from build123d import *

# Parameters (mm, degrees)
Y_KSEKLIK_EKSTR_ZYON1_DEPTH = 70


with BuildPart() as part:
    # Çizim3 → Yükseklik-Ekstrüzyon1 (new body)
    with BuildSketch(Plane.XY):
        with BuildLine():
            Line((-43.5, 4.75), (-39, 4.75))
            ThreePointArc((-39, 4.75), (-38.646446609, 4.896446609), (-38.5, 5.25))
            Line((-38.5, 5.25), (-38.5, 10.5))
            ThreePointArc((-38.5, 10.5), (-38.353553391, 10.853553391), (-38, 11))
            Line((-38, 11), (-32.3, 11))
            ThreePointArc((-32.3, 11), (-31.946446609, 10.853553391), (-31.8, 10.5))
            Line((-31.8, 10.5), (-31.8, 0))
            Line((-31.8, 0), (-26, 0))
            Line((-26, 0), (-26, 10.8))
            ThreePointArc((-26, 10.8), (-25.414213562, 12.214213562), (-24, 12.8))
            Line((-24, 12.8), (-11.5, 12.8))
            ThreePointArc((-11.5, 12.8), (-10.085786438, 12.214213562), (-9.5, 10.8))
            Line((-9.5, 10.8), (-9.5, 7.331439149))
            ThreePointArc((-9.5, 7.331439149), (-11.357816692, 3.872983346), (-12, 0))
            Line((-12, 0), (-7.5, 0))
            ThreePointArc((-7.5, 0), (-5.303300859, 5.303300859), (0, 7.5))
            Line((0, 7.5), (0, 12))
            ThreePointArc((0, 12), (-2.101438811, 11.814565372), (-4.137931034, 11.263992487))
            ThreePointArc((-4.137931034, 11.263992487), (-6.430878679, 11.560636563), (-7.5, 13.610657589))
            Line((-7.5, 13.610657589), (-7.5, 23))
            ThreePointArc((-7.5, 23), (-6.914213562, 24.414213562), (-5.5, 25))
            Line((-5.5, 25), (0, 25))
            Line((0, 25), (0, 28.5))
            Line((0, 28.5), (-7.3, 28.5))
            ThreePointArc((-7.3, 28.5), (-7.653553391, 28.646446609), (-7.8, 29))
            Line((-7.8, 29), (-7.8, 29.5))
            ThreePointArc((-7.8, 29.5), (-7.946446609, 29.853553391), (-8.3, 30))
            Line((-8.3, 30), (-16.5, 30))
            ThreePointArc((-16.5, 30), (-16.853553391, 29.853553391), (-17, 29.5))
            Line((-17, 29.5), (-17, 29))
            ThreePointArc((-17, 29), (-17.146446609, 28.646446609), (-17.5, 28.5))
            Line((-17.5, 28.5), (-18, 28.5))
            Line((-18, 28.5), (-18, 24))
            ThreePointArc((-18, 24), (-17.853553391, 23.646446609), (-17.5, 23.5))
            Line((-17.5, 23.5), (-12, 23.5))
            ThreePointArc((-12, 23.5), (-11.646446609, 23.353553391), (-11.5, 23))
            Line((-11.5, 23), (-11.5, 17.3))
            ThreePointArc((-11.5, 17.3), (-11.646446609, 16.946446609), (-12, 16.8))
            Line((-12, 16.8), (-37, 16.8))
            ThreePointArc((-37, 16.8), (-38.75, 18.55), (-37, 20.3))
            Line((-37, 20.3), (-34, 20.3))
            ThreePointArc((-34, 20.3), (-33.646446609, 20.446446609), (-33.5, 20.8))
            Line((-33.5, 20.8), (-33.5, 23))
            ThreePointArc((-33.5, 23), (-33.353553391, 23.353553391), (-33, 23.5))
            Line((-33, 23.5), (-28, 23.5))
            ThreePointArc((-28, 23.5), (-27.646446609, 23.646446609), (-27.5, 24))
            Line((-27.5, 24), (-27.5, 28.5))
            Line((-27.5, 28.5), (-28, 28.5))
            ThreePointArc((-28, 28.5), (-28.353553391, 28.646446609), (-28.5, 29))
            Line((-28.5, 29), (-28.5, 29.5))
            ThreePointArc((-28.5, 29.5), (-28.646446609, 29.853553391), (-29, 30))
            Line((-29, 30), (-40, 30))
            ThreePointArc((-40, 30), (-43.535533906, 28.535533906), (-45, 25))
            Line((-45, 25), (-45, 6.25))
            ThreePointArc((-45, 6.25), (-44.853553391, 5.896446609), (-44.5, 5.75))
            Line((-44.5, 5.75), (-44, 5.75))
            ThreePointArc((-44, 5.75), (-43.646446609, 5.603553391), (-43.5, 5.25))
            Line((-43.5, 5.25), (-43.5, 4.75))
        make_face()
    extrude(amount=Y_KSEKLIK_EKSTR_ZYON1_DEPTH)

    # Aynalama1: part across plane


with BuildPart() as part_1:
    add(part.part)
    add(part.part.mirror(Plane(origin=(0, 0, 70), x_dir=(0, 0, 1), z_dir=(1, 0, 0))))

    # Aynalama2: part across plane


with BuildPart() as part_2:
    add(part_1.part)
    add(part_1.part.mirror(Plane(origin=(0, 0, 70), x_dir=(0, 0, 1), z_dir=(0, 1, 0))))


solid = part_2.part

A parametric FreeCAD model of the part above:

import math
import FreeCAD as App
import Part
import Sketcher

V = App.Vector
Q = App.Units.Quantity

doc = App.newDocument("Part")
body = doc.addObject("PartDesign::Body", "Body")

# Sketch on XY plane
sketch1 = body.newObject("Sketcher::SketchObject", "Sketch")
sketch1.AttachmentSupport = (doc.getObject("XY_Plane"), [""])
sketch1.MapMode = "FlatFace"
sketch1.addGeometry([
    Part.LineSegment(V(-43.5, 4.75, 0), V(-39, 4.75, 0)),  # 0
    Part.ArcOfCircle(Part.Circle(V(-39, 5.25, 0), V(0, 0, 1), 0.5), math.radians(-90), math.radians(0)),  # 1
    Part.LineSegment(V(-38.5, 5.25, 0), V(-38.5, 10.5, 0)),  # 2
    Part.ArcOfCircle(Part.Circle(V(-38, 10.5, 0), V(0, 0, 1), 0.5), math.radians(90), math.radians(180)),  # 3
    Part.LineSegment(V(-38, 11, 0), V(-32.3, 11, 0)),  # 4
    Part.ArcOfCircle(Part.Circle(V(-32.3, 10.5, 0), V(0, 0, 1), 0.5), math.radians(0), math.radians(90)),  # 5
    Part.LineSegment(V(-31.8, 10.5, 0), V(-31.8, 0, 0)),  # 6
    Part.LineSegment(V(-31.8, 0, 0), V(-26, 0, 0)),  # 7
    Part.LineSegment(V(-26, 0, 0), V(-26, 10.8, 0)),  # 8
    Part.ArcOfCircle(Part.Circle(V(-24, 10.8, 0), V(0, 0, 1), 2), math.radians(90), math.radians(180)),  # 9
    Part.LineSegment(V(-24, 12.8, 0), V(-11.5, 12.8, 0)),  # 10
    Part.ArcOfCircle(Part.Circle(V(-11.5, 10.8, 0), V(0, 0, 1), 2), math.radians(0), math.radians(90)),  # 11
    Part.LineSegment(V(-9.5, 10.8, 0), V(-9.5, 7.331439, 0)),  # 12
    Part.ArcOfCircle(Part.Circle(V(0, 0, 0), V(0, 0, 1), 12), math.radians(142.341538), math.radians(180)),  # 13
    Part.LineSegment(V(-12, 0, 0), V(-7.5, 0, 0)),  # 14
    Part.ArcOfCircle(Part.Circle(V(0, 0, 0), V(0, 0, 1), 7.5), math.radians(90), math.radians(180)),  # 15
    Part.LineSegment(V(0, 7.5, 0), V(0, 12, 0)),  # 16
    Part.ArcOfCircle(Part.Circle(V(0, 0, 0), V(0, 0, 1), 12), math.radians(90), math.radians(110.171271)),  # 17
    Part.ArcOfCircle(Part.Circle(V(-5, 13.610658, 0), V(0, 0, 1), 2.5), math.radians(180), math.radians(290.171271)),  # 18
    Part.LineSegment(V(-7.5, 13.610658, 0), V(-7.5, 23, 0)),  # 19
    Part.ArcOfCircle(Part.Circle(V(-5.5, 23, 0), V(0, 0, 1), 2), math.radians(90), math.radians(180)),  # 20
    Part.LineSegment(V(-5.5, 25, 0), V(0, 25, 0)),  # 21
    Part.LineSegment(V(0, 25, 0), V(0, 28.5, 0)),  # 22
    Part.LineSegment(V(0, 28.5, 0), V(-7.3, 28.5, 0)),  # 23
    Part.ArcOfCircle(Part.Circle(V(-7.3, 29, 0), V(0, 0, 1), 0.5), math.radians(180), math.radians(270)),  # 24
    Part.LineSegment(V(-7.8, 29, 0), V(-7.8, 29.5, 0)),  # 25
    Part.ArcOfCircle(Part.Circle(V(-8.3, 29.5, 0), V(0, 0, 1), 0.5), math.radians(0), math.radians(90)),  # 26
    Part.LineSegment(V(-8.3, 30, 0), V(-16.5, 30, 0)),  # 27
    Part.ArcOfCircle(Part.Circle(V(-16.5, 29.5, 0), V(0, 0, 1), 0.5), math.radians(90), math.radians(180)),  # 28
    Part.LineSegment(V(-17, 29.5, 0), V(-17, 29, 0)),  # 29
    Part.ArcOfCircle(Part.Circle(V(-17.5, 29, 0), V(0, 0, 1), 0.5), math.radians(-90), math.radians(0)),  # 30
    Part.LineSegment(V(-17.5, 28.5, 0), V(-18, 28.5, 0)),  # 31
    Part.LineSegment(V(-18, 28.5, 0), V(-18, 24, 0)),  # 32
    Part.ArcOfCircle(Part.Circle(V(-17.5, 24, 0), V(0, 0, 1), 0.5), math.radians(180), math.radians(270)),  # 33
    Part.LineSegment(V(-17.5, 23.5, 0), V(-12, 23.5, 0)),  # 34
    Part.ArcOfCircle(Part.Circle(V(-12, 23, 0), V(0, 0, 1), 0.5), math.radians(0), math.radians(90)),  # 35
    Part.LineSegment(V(-11.5, 23, 0), V(-11.5, 17.3, 0)),  # 36
    Part.ArcOfCircle(Part.Circle(V(-12, 17.3, 0), V(0, 0, 1), 0.5), math.radians(-90), math.radians(0)),  # 37
    Part.LineSegment(V(-12, 16.8, 0), V(-37, 16.8, 0)),  # 38
    Part.ArcOfCircle(Part.Circle(V(-37, 18.55, 0), V(0, 0, 1), 1.75), math.radians(90), math.radians(270)),  # 39
    Part.LineSegment(V(-37, 20.3, 0), V(-34, 20.3, 0)),  # 40
    Part.ArcOfCircle(Part.Circle(V(-34, 20.8, 0), V(0, 0, 1), 0.5), math.radians(-90), math.radians(0)),  # 41
    Part.LineSegment(V(-33.5, 20.8, 0), V(-33.5, 23, 0)),  # 42
    Part.ArcOfCircle(Part.Circle(V(-33, 23, 0), V(0, 0, 1), 0.5), math.radians(90), math.radians(180)),  # 43
    Part.LineSegment(V(-33, 23.5, 0), V(-28, 23.5, 0)),  # 44
    Part.ArcOfCircle(Part.Circle(V(-28, 24, 0), V(0, 0, 1), 0.5), math.radians(-90), math.radians(0)),  # 45
    Part.LineSegment(V(-27.5, 24, 0), V(-27.5, 28.5, 0)),  # 46
    Part.LineSegment(V(-27.5, 28.5, 0), V(-28, 28.5, 0)),  # 47
    Part.ArcOfCircle(Part.Circle(V(-28, 29, 0), V(0, 0, 1), 0.5), math.radians(180), math.radians(270)),  # 48
    Part.LineSegment(V(-28.5, 29, 0), V(-28.5, 29.5, 0)),  # 49
    Part.ArcOfCircle(Part.Circle(V(-29, 29.5, 0), V(0, 0, 1), 0.5), math.radians(0), math.radians(90)),  # 50
    Part.LineSegment(V(-29, 30, 0), V(-40, 30, 0)),  # 51
    Part.ArcOfCircle(Part.Circle(V(-40, 25, 0), V(0, 0, 1), 5), math.radians(90), math.radians(180)),  # 52
    Part.LineSegment(V(-45, 25, 0), V(-45, 6.25, 0)),  # 53
    Part.ArcOfCircle(Part.Circle(V(-44.5, 6.25, 0), V(0, 0, 1), 0.5), math.radians(180), math.radians(270)),  # 54
    Part.LineSegment(V(-44.5, 5.75, 0), V(-44, 5.75, 0)),  # 55
    Part.ArcOfCircle(Part.Circle(V(-44, 5.25, 0), V(0, 0, 1), 0.5), math.radians(0), math.radians(90)),  # 56
    Part.LineSegment(V(-43.5, 5.25, 0), V(-43.5, 4.75, 0)),  # 57
], False)
sketch1.addConstraint([
    Sketcher.Constraint("Tangent", 0, 2, 1, 1),
    Sketcher.Constraint("Tangent", 1, 2, 2, 1),
    Sketcher.Constraint("Tangent", 2, 2, 3, 2),
    Sketcher.Constraint("Tangent", 3, 1, 4, 1),
    Sketcher.Constraint("Tangent", 4, 2, 5, 2),
    Sketcher.Constraint("Tangent", 5, 1, 6, 1),
    Sketcher.Constraint("Coincident", 6, 2, 7, 1),
    Sketcher.Constraint("Coincident", 7, 2, 8, 1),
    Sketcher.Constraint("Tangent", 8, 2, 9, 2),
    Sketcher.Constraint("Tangent", 9, 1, 10, 1),
    Sketcher.Constraint("Tangent", 10, 2, 11, 2),
    Sketcher.Constraint("Tangent", 11, 1, 12, 1),
    Sketcher.Constraint("Coincident", 12, 2, 13, 1),
    Sketcher.Constraint("Coincident", 13, 2, 14, 1),
    Sketcher.Constraint("Coincident", 14, 2, 15, 2),
    Sketcher.Constraint("Coincident", 15, 1, 16, 1),
    Sketcher.Constraint("Coincident", 16, 2, 17, 1),
    Sketcher.Constraint("Tangent", 17, 2, 18, 2),
    Sketcher.Constraint("Tangent", 18, 1, 19, 1),
    Sketcher.Constraint("Tangent", 19, 2, 20, 2),
    Sketcher.Constraint("Tangent", 20, 1, 21, 1),
    Sketcher.Constraint("Coincident", 21, 2, 22, 1),
    Sketcher.Constraint("Coincident", 22, 2, 23, 1),
    Sketcher.Constraint("Tangent", 23, 2, 24, 2),
    Sketcher.Constraint("Tangent", 24, 1, 25, 1),
    Sketcher.Constraint("Tangent", 25, 2, 26, 1),
    Sketcher.Constraint("Tangent", 26, 2, 27, 1),
    Sketcher.Constraint("Tangent", 27, 2, 28, 1),
    Sketcher.Constraint("Tangent", 28, 2, 29, 1),
    Sketcher.Constraint("Tangent", 29, 2, 30, 2),
    Sketcher.Constraint("Tangent", 30, 1, 31, 1),
    Sketcher.Constraint("Coincident", 31, 2, 32, 1),
    Sketcher.Constraint("Tangent", 32, 2, 33, 1),
    Sketcher.Constraint("Tangent", 33, 2, 34, 1),
    Sketcher.Constraint("Tangent", 34, 2, 35, 2),
    Sketcher.Constraint("Tangent", 35, 1, 36, 1),
    Sketcher.Constraint("Tangent", 36, 2, 37, 2),
    Sketcher.Constraint("Tangent", 37, 1, 38, 1),
    Sketcher.Constraint("Tangent", 38, 2, 39, 2),
    Sketcher.Constraint("Tangent", 39, 1, 40, 1),
    Sketcher.Constraint("Tangent", 40, 2, 41, 1),
    Sketcher.Constraint("Tangent", 41, 2, 42, 1),
    Sketcher.Constraint("Tangent", 42, 2, 43, 2),
    Sketcher.Constraint("Tangent", 43, 1, 44, 1),
    Sketcher.Constraint("Tangent", 44, 2, 45, 1),
    Sketcher.Constraint("Tangent", 45, 2, 46, 1),
    Sketcher.Constraint("Coincident", 46, 2, 47, 1),
    Sketcher.Constraint("Tangent", 47, 2, 48, 2),
    Sketcher.Constraint("Tangent", 48, 1, 49, 1),
    Sketcher.Constraint("Tangent", 49, 2, 50, 1),
    Sketcher.Constraint("Tangent", 50, 2, 51, 1),
    Sketcher.Constraint("Tangent", 51, 2, 52, 1),
    Sketcher.Constraint("Tangent", 52, 2, 53, 1),
    Sketcher.Constraint("Tangent", 53, 2, 54, 1),
    Sketcher.Constraint("Tangent", 54, 2, 55, 1),
    Sketcher.Constraint("Tangent", 55, 2, 56, 2),
    Sketcher.Constraint("Tangent", 56, 1, 57, 1),
    Sketcher.Constraint("Coincident", 57, 2, 0, 1),
    Sketcher.Constraint("Horizontal", 0),
    Sketcher.Constraint("Vertical", 2),
    Sketcher.Constraint("Horizontal", 4),
    Sketcher.Constraint("Vertical", 6),
    Sketcher.Constraint("Horizontal", 7),
    Sketcher.Constraint("Vertical", 8),
    Sketcher.Constraint("Horizontal", 10),
    Sketcher.Constraint("Vertical", 12),
    Sketcher.Constraint("Horizontal", 14),
    Sketcher.Constraint("Vertical", 16),
    Sketcher.Constraint("Vertical", 19),
    Sketcher.Constraint("Horizontal", 21),
    Sketcher.Constraint("Vertical", 22),
    Sketcher.Constraint("Horizontal", 23),
    Sketcher.Constraint("Vertical", 25),
    Sketcher.Constraint("Horizontal", 27),
    Sketcher.Constraint("Vertical", 29),
    Sketcher.Constraint("Horizontal", 31),
    Sketcher.Constraint("Vertical", 32),
    Sketcher.Constraint("Horizontal", 34),
    Sketcher.Constraint("Vertical", 36),
    Sketcher.Constraint("Horizontal", 38),
    Sketcher.Constraint("Horizontal", 40),
    Sketcher.Constraint("Vertical", 42),
    Sketcher.Constraint("Horizontal", 44),
    Sketcher.Constraint("Vertical", 46),
    Sketcher.Constraint("Horizontal", 47),
    Sketcher.Constraint("Vertical", 49),
    Sketcher.Constraint("Horizontal", 51),
    Sketcher.Constraint("Vertical", 53),
    Sketcher.Constraint("Horizontal", 55),
    Sketcher.Constraint("Vertical", 57),
    Sketcher.Constraint("Coincident", 13, 3, -1, 1),
    Sketcher.Constraint("Coincident", 15, 3, -1, 1),
    Sketcher.Constraint("Coincident", 17, 3, -1, 1),
    Sketcher.Constraint("Equal", 1, 3),
    Sketcher.Constraint("Equal", 3, 5),
    Sketcher.Constraint("Equal", 9, 11),
    Sketcher.Constraint("Equal", 13, 17),
    Sketcher.Constraint("Equal", 11, 20),
    Sketcher.Constraint("Equal", 5, 24),
    Sketcher.Constraint("Equal", 24, 26),
    Sketcher.Constraint("Equal", 26, 28),
    Sketcher.Constraint("Equal", 28, 30),
    Sketcher.Constraint("Equal", 30, 33),
    Sketcher.Constraint("Equal", 33, 35),
    Sketcher.Constraint("Equal", 35, 37),
    Sketcher.Constraint("Equal", 37, 41),
    Sketcher.Constraint("Equal", 41, 43),
    Sketcher.Constraint("Equal", 43, 45),
    Sketcher.Constraint("Equal", 45, 48),
    Sketcher.Constraint("Equal", 48, 50),
    Sketcher.Constraint("Equal", 50, 54),
    Sketcher.Constraint("Equal", 54, 56),
    Sketcher.Constraint("PointOnObject", 6, 2, -1),
    Sketcher.Constraint("PointOnObject", 13, 2, -1),
    Sketcher.Constraint("PointOnObject", 15, 1, -2),
    Sketcher.Constraint("PointOnObject", 21, 2, -2),
    Sketcher.Constraint("Horizontal", 24, 3, 30, 3),
    Sketcher.Constraint("Horizontal", 20, 3, 35, 3),
    Sketcher.Constraint("Horizontal", 35, 3, 43, 3),
    Sketcher.Constraint("Horizontal", 30, 3, 48, 3),
    Sketcher.Constraint("Horizontal", 28, 3, 50, 3),
    Sketcher.Constraint("Horizontal", 1, 3, 56, 3),
    Sketcher.Constraint("Horizontal", 52, 3, 20, 1),
    Sketcher.Constraint("Vertical", 30, 3, 33, 3),
    Sketcher.Constraint("Vertical", 45, 3, 48, 3),
    Sketcher.Constraint("Vertical", 37, 3, 13, 2),
    Sketcher.Constraint("Vertical", 14, 2, 18, 1),
    Sketcher.Constraint("Vertical", 10, 2, 35, 1),
    Sketcher.Constraint("Equal", 0, 14),
    Sketcher.Constraint("Equal", 21, 34),
    Sketcher.Constraint("Equal", 47, 55),
    Sketcher.Constraint("Equal", 55, 25),
    Sketcher.Constraint("Equal", 16, 32),
    Sketcher.Constraint("Equal", 4, 36),
    Sketcher.Constraint("Radius", 9, Q("2 mm")),
    Sketcher.Constraint("Radius", 13, Q("12 mm")),
    Sketcher.Constraint("Radius", 52, Q("5 mm")),
    Sketcher.Constraint("Radius", 1, Q("0.5 mm")),
    Sketcher.Constraint("Radius", 18, Q("2.5 mm")),
    Sketcher.Constraint("DistanceX", 38, 2, 38, 1, Q("25 mm")),
    Sketcher.Constraint("DistanceX", 40, 1, 40, 2, Q("3 mm")),
    Sketcher.Constraint("DistanceX", 44, 1, 44, 2, Q("5 mm")),
    Sketcher.Constraint("DistanceX", 51, 2, 51, 1, Q("11 mm")),
    Sketcher.Constraint("Radius", 39, Q("1.75 mm")),
    Sketcher.Constraint("DistanceX", 4, 1, 4, 2, Q("5.7 mm")),
    Sketcher.Constraint("DistanceX", 7, 1, 7, 2, Q("5.8 mm")),
    Sketcher.Constraint("DistanceX", 23, 2, 23, 1, Q("7.3 mm")),
    Sketcher.Constraint("DistanceY", 6, 2, 6, 1, Q("10.5 mm")),
    Sketcher.Constraint("DistanceY", 8, 1, 8, 2, Q("10.8 mm")),
    Sketcher.Constraint("DistanceY", -1, 1, 20, 3, Q("23 mm")),
    Sketcher.Constraint("DistanceY", 2, 1, 2, 2, Q("5.25 mm")),
])
pad1 = body.newObject("PartDesign::Pad", "Pad")
pad1.Profile = sketch1
pad1.Length = 70
body2 = doc.addObject("PartDesign::Body", "Body001")
doc.recompute()

body2.BaseFeature = body
doc.recompute()

mirroring = doc.addObject("Part::Mirroring", "Mirroring")
mirroring.Source = body
mirroring.Base = V(0, 0, 70)
mirroring.Normal = V(1, 0, 0)
body3 = doc.addObject("PartDesign::Body", "Body002")
body3.BaseFeature = mirroring
boolean = body2.newObject("PartDesign::Boolean", "Boolean")
boolean.Type = "Fuse"
boolean.addObjects([body3])
doc.recompute()
body4 = doc.addObject("PartDesign::Body", "Body003")
doc.recompute()

body4.BaseFeature = body2
doc.recompute()

mirroring2 = doc.addObject("Part::Mirroring", "Mirroring001")
mirroring2.Source = body2
mirroring2.Base = V(0, 0, 70)
mirroring2.Normal = V(0, 1, 0)
body5 = doc.addObject("PartDesign::Body", "Body004")
body5.BaseFeature = mirroring2
boolean2 = body4.newObject("PartDesign::Boolean", "Boolean001")
boolean2.Type = "Fuse"
boolean2.addObjects([body5])
doc.recompute()
mirroring.Visibility = False
mirroring2.Visibility = False

doc.recompute()
